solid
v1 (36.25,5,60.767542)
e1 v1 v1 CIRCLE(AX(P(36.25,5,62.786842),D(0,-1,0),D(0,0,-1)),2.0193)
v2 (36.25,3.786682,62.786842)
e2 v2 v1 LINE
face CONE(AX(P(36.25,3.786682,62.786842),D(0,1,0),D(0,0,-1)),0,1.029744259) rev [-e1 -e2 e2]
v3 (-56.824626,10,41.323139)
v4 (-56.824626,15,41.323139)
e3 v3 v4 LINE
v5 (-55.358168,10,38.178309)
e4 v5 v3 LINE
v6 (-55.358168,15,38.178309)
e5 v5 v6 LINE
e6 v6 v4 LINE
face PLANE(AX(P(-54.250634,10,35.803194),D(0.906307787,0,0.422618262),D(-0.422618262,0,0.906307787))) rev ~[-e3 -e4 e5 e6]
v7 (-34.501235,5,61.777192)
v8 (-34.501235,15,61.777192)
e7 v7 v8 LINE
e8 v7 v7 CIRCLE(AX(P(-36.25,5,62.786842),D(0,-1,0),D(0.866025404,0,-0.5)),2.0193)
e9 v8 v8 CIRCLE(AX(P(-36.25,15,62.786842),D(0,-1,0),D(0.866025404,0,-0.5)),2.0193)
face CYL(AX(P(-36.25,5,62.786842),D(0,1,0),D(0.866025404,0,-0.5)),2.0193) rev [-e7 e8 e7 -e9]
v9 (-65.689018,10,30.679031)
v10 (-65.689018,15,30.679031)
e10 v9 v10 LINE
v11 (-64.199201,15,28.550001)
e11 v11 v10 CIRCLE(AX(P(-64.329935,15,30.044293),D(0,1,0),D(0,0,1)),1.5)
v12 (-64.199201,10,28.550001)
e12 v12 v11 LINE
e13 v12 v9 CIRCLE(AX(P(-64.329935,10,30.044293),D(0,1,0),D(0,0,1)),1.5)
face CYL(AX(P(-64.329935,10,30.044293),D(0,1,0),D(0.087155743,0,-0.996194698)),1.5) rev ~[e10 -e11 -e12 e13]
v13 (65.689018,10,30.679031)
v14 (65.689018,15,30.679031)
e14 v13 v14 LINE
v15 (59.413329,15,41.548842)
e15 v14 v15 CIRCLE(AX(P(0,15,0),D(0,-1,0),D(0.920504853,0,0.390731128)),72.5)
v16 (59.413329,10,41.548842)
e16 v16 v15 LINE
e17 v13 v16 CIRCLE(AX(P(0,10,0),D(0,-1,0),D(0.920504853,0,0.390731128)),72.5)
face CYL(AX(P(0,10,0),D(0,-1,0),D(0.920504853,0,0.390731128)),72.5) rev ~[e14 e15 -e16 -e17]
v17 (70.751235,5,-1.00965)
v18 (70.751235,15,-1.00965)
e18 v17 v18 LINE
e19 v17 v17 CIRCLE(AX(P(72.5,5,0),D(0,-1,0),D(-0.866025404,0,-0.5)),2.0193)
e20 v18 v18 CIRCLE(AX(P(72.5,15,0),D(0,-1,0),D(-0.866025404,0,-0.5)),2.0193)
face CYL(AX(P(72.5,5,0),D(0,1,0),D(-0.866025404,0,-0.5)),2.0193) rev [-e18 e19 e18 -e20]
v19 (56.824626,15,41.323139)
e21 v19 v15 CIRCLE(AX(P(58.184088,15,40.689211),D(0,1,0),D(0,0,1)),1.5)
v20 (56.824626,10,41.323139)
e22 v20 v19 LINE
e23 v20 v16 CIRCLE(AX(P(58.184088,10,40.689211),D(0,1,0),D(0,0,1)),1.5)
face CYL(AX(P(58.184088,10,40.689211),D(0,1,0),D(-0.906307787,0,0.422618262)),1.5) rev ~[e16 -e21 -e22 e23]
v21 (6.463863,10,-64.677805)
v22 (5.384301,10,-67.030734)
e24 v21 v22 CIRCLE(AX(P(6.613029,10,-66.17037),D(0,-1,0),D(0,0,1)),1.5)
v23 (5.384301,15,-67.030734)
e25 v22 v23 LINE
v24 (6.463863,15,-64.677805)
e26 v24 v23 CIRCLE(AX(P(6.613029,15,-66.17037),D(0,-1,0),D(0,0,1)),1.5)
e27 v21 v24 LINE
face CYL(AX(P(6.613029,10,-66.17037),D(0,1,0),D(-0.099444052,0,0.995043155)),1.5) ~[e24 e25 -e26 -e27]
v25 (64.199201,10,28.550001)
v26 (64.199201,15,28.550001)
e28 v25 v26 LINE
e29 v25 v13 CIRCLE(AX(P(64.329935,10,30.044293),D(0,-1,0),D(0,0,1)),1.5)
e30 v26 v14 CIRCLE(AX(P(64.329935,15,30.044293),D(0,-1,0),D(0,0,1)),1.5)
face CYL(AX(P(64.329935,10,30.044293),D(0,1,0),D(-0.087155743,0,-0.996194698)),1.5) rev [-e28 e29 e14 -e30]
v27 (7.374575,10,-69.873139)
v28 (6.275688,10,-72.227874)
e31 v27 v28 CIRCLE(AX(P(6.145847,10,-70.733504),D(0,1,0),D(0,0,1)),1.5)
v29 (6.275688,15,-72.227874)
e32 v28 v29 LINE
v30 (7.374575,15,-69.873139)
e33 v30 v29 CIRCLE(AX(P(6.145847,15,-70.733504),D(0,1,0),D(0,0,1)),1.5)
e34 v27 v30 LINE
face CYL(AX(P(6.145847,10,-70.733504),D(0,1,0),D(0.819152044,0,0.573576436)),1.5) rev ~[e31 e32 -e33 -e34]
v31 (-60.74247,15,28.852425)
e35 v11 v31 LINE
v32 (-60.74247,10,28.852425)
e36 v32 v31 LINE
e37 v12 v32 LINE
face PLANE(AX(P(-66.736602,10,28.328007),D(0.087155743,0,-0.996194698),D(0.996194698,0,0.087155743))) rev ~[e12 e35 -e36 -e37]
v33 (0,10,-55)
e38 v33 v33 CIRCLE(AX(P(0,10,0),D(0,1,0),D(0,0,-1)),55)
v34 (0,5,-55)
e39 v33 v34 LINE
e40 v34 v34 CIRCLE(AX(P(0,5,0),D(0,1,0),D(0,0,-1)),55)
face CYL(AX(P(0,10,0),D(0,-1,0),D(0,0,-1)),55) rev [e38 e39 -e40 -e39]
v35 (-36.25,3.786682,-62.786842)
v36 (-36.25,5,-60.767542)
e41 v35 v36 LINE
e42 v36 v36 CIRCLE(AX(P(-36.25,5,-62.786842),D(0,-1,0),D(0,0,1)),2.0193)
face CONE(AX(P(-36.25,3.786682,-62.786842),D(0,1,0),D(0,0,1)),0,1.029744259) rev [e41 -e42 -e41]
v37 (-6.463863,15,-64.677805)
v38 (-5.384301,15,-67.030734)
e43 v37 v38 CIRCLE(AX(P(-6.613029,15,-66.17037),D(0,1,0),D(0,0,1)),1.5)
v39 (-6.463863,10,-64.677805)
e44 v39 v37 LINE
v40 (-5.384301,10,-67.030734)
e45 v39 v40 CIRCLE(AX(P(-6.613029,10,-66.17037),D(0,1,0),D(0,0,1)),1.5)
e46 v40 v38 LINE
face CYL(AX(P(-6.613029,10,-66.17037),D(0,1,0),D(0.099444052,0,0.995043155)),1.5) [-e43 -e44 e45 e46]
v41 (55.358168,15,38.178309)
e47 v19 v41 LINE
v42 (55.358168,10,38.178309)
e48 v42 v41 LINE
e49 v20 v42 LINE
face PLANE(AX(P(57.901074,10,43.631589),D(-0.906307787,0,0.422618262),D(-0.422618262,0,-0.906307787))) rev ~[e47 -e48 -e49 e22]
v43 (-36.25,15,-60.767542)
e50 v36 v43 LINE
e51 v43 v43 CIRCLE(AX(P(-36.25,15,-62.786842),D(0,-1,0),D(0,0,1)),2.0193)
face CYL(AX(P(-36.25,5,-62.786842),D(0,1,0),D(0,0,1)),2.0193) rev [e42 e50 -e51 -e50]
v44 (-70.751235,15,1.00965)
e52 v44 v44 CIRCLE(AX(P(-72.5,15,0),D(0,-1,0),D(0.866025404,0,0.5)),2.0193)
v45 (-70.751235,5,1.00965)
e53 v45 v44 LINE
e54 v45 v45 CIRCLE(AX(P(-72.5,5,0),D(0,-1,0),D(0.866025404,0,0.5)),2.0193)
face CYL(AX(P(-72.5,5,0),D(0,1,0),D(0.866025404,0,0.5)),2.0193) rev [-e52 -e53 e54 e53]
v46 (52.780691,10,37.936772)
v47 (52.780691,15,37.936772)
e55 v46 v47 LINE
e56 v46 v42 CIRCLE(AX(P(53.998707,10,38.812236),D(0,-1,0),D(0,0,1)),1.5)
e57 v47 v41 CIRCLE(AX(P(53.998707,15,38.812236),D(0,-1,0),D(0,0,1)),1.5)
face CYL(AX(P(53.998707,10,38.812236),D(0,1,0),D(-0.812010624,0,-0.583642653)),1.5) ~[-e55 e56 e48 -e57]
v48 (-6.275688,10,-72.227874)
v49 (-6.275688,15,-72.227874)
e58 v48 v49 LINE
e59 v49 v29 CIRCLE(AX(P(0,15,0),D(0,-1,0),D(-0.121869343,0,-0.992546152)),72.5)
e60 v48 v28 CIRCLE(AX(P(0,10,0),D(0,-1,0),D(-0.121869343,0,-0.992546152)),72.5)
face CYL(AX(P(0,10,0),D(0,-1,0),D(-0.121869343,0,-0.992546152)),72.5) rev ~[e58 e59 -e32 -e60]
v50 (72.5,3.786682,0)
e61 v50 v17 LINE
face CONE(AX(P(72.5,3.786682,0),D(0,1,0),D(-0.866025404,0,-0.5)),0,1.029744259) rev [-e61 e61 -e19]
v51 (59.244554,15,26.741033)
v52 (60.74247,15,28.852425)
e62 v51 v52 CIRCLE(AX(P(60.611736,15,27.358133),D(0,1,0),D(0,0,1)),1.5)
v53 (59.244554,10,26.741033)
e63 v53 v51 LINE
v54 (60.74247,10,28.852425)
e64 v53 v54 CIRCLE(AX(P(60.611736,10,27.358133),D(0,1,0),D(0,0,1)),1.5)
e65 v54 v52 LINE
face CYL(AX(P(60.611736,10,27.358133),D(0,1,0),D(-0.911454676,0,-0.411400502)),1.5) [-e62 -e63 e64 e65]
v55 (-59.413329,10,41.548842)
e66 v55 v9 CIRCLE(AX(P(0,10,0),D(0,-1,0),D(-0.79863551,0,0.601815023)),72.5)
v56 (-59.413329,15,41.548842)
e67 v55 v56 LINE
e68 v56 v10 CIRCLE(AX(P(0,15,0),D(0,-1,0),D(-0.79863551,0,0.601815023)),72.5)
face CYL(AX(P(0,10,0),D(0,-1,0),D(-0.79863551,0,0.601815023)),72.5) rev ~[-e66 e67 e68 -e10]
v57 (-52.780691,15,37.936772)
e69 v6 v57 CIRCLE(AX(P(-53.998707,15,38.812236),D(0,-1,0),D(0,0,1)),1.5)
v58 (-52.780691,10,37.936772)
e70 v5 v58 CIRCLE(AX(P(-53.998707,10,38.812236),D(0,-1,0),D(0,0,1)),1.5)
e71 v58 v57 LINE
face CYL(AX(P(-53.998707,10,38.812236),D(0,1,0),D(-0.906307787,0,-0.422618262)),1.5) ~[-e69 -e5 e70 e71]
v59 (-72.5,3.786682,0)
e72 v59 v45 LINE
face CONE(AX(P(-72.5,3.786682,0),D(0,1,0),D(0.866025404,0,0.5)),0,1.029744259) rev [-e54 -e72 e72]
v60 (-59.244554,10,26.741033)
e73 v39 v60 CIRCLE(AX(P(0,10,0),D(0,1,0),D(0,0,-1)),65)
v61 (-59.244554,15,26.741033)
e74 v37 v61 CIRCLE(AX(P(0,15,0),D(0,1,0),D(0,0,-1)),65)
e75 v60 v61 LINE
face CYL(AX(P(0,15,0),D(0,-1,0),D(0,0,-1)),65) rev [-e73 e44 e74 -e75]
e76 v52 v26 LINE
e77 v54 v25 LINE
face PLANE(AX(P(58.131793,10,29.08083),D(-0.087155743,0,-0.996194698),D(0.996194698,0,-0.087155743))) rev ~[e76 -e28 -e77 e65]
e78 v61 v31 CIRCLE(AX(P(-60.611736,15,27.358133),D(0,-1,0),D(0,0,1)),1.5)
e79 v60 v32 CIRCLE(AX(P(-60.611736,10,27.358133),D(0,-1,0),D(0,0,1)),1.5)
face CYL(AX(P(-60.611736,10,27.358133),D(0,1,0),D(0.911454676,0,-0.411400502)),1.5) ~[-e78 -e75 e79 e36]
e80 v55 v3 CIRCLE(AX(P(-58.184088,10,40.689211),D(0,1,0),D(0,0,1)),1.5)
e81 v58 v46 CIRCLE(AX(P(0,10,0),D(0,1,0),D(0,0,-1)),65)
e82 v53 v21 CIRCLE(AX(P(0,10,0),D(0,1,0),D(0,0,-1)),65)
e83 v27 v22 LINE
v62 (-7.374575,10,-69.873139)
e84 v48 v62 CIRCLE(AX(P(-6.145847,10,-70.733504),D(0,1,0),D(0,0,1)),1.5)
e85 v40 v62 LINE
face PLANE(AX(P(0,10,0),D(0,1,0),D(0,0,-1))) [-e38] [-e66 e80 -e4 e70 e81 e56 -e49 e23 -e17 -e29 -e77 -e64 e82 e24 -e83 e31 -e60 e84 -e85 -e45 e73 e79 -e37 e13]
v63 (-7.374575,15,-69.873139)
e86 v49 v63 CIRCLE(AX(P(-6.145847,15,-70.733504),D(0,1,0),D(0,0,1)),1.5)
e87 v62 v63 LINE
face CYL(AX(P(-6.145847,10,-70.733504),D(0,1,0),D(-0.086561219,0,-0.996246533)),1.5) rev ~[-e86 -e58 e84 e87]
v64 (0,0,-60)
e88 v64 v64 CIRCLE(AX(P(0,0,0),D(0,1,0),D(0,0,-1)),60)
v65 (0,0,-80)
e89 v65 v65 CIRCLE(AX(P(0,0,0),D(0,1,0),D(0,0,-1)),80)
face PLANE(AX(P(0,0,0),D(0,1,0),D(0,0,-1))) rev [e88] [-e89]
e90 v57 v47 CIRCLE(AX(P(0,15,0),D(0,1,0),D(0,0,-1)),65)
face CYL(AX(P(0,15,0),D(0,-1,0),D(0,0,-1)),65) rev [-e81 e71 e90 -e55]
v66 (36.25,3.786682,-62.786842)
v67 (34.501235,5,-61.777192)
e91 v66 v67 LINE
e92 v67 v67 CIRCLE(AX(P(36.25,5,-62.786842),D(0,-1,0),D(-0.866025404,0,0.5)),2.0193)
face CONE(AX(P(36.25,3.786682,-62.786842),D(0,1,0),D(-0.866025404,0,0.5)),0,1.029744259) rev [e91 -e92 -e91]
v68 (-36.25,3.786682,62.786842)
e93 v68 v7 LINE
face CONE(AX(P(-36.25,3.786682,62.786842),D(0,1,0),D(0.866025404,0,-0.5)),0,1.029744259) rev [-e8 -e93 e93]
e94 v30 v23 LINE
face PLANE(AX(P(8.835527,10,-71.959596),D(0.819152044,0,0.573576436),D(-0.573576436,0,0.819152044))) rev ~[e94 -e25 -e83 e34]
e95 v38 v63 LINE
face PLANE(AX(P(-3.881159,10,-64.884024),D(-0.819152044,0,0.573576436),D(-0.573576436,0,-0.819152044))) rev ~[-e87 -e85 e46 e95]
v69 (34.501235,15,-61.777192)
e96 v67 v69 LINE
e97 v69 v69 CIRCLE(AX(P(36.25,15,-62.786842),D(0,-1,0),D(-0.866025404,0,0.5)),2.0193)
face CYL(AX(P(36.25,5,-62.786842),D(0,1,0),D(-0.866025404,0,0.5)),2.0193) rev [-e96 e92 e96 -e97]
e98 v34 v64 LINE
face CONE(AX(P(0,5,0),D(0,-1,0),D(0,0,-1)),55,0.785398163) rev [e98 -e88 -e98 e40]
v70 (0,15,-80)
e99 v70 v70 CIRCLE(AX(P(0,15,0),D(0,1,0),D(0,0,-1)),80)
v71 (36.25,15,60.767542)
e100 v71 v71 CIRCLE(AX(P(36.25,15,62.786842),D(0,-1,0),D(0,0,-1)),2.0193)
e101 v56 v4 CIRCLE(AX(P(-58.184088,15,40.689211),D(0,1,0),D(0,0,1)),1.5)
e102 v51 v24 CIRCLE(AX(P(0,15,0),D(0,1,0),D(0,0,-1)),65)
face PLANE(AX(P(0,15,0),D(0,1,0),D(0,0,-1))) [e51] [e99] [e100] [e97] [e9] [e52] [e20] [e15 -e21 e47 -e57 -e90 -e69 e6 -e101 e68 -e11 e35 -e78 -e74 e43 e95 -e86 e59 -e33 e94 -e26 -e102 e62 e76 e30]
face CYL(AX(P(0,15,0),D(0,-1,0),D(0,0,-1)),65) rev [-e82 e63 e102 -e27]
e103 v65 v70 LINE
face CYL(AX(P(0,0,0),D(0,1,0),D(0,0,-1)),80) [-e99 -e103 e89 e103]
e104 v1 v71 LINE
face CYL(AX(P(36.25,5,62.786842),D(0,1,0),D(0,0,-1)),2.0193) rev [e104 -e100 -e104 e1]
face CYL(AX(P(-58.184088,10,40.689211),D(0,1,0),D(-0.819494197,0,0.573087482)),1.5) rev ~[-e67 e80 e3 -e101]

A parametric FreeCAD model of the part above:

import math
import FreeCAD as App
import Part
import Sketcher
from FreeCAD import Vector
Q = App.Units.Quantity


def edges_at(feature, points):
    """Names of the edges that pass closest to the given points."""
    edges = feature.Shape.Edges
    near = lambda p: min(range(len(edges)), key=lambda i: edges[i].distToShape(Part.Vertex(*p))[0])
    return sorted({f"Edge{near(p) + 1}" for p in points})

doc = App.newDocument("Part")
body = doc.addObject("PartDesign::Body", "Body")

sketch1 = doc.addObject("Sketcher::SketchObject", "Sketch")
body.addObject(sketch1)
sketch1.AttachmentSupport = (doc.YZ_Plane, [""])
sketch1.MapMode = "FlatFace"
sketch1.addGeometry(Part.LineSegment(Vector(0, 80, 0), Vector(0, 55, 0)), False)
sketch1.addGeometry(Part.LineSegment(Vector(0, 55, 0), Vector(10, 55, 0)), False)
sketch1.addGeometry(Part.LineSegment(Vector(10, 55, 0), Vector(10, 65, 0)), False)
sketch1.addGeometry(Part.LineSegment(Vector(10, 65, 0), Vector(15, 65, 0)), False)
sketch1.addGeometry(Part.LineSegment(Vector(15, 65, 0), Vector(15, 80, 0)), False)
sketch1.addGeometry(Part.LineSegment(Vector(15, 80, 0), Vector(0, 80, 0)), False)
sketch1.addConstraint(Sketcher.Constraint("Coincident", 0, 2, 1, 1))
sketch1.addConstraint(Sketcher.Constraint("Coincident", 1, 2, 2, 1))
sketch1.addConstraint(Sketcher.Constraint("Coincident", 2, 2, 3, 1))
sketch1.addConstraint(Sketcher.Constraint("Coincident", 3, 2, 4, 1))
sketch1.addConstraint(Sketcher.Constraint("Coincident", 4, 2, 5, 1))
sketch1.addConstraint(Sketcher.Constraint("Coincident", 5, 2, 0, 1))
sketch1.addConstraint(Sketcher.Constraint("Vertical", 0))
sketch1.addConstraint(Sketcher.Constraint("Horizontal", 1))
sketch1.addConstraint(Sketcher.Constraint("Vertical", 2))
sketch1.addConstraint(Sketcher.Constraint("Horizontal", 3))
sketch1.addConstraint(Sketcher.Constraint("Vertical", 4))
sketch1.addConstraint(Sketcher.Constraint("Horizontal", 5))
sketch1.addConstraint(Sketcher.Constraint("PointOnObject", 0, 2, -2))
sketch1.addConstraint(Sketcher.Constraint("Equal", 1, 2))
sketch1.addConstraint(Sketcher.Constraint("Equal", 5, 4))
sketch1.addConstraint(Sketcher.Constraint("DistanceX", 1, 1, 1, 2, Q("10 mm")))
sketch1.addConstraint(Sketcher.Constraint("DistanceX", 3, 1, 3, 2, Q("5 mm")))
sketch1.addConstraint(Sketcher.Constraint("DistanceY", -1, 1, 0, 2, Q("55 mm")))
revolution = doc.addObject("PartDesign::Revolution", "Revolution")
body.addObject(revolution)
revolution.Profile = sketch1
revolution.ReferenceAxis = (sketch1, ["H_Axis"])
revolution.Angle = 360

sketch2 = doc.addObject("Sketcher::SketchObject", "Sketch001")
body.addObject(sketch2)
sketch2.AttachmentSupport = (doc.XZ_Plane, [""])
sketch2.MapMode = "FlatFace"
sketch2.AttachmentOffset = App.Placement(Vector(0, 0, -10), App.Rotation())
sketch2.addGeometry(Part.LineSegment(Vector(-9, -72, 0), Vector(-4, -65, 0)), False)
sketch2.addGeometry(Part.ArcOfCircle(Part.Circle(Vector(0, 0, 0), Vector(0, 0, 1), 65), math.radians(-93.42), math.radians(-86.58)), False)
sketch2.addGeometry(Part.LineSegment(Vector(4, -65, 0), Vector(9, -72, 0)), False)
sketch2.addGeometry(Part.ArcOfCircle(Part.Circle(Vector(0, 0, 0), Vector(0, 0, 1), 73), math.radians(-97), math.radians(-83)), False)
sketch2.addConstraint(Sketcher.Constraint("Coincident", 0, 2, 1, 1))
sketch2.addConstraint(Sketcher.Constraint("Coincident", 1, 2, 2, 1))
sketch2.addConstraint(Sketcher.Constraint("Coincident", 2, 2, 3, 2))
sketch2.addConstraint(Sketcher.Constraint("Coincident", 3, 1, 0, 1))
sketch2.addConstraint(Sketcher.Constraint("Coincident", 1, 3, -1, 1))
sketch2.addConstraint(Sketcher.Constraint("Coincident", 3, 3, -1, 1))
sketch2.addConstraint(Sketcher.Constraint("Horizontal", 0, 2, 1, 2))
sketch2.addConstraint(Sketcher.Constraint("Horizontal", 2, 2, 3, 1))
sketch2.addConstraint(Sketcher.Constraint("Radius", 1, Q("65 mm")))
sketch2.addConstraint(Sketcher.Constraint("Radius", 3, Q("72.5 mm")))
sketch2.addConstraint(Sketcher.Constraint("Angle", 0, Q("55 deg")))
sketch2.addConstraint(Sketcher.Constraint("Distance", 0, Q("8.637678 mm")))
pocket1 = doc.addObject("PartDesign::Pocket", "Pocket")
body.addObject(pocket1)
pocket1.Profile = sketch2
pocket1.Length = 5
doc.recompute()

fillet = doc.addObject("PartDesign::Fillet", "Fillet")
body.addObject(fillet)
fillet.Base = (pocket1, edges_at(pocket1, [
    (3.881, 12.5, -64.884),
    (-3.881, 12.5, -64.884),
    (-8.836, 12.5, -71.96),
    (8.836, 12.5, -71.96),
]))
fillet.Radius = 1.5
doc.recompute()

chamfer = doc.addObject("PartDesign::Chamfer", "Chamfer")
body.addObject(chamfer)
chamfer.Base = (fillet, edges_at(fillet, [(0, 0, 55)]))
chamfer.Size = 5
doc.recompute()

polarpattern = doc.addObject("PartDesign::PolarPattern", "PolarPattern")
body.addObject(polarpattern)
polarpattern.Originals = [pocket1]
polarpattern.Axis = (doc.Y_Axis, [""])
polarpattern.Angle = 360
polarpattern.Occurrences = 3
body.Tip = polarpattern
doc.recompute()

fillet2 = doc.addObject("PartDesign::Fillet", "Fillet001")
body.addObject(fillet2)
fillet2.Base = (polarpattern, edges_at(polarpattern, [
    (-58.132, 12.5, 29.081),
    (-54.251, 12.5, 35.803),
    (-57.901, 12.5, 43.632),
    (-66.737, 12.5, 28.328),
    (54.251, 12.5, 35.803),
    (58.132, 12.5, 29.081),
    (66.737, 12.5, 28.328),
    (57.901, 12.5, 43.632),
]))
fillet2.Radius = 1.5

sketch3 = doc.addObject("Sketcher::SketchObject", "Sketch002")
body.addObject(sketch3)
sketch3.AttachmentSupport = (doc.YZ_Plane, [""])
sketch3.MapMode = "FlatFace"
sketch3.AttachmentOffset = App.Placement(Vector(0, 0, -36.25), App.Rotation())
sketch3.addGeometry(Part.LineSegment(Vector(3.8, -62.8, 0), Vector(15, -62.8, 0)), False)
sketch3.addGeometry(Part.LineSegment(Vector(15, -62.8, 0), Vector(15, -60.8, 0)), False)
sketch3.addGeometry(Part.LineSegment(Vector(15, -60.8, 0), Vector(5, -60.8, 0)), False)
sketch3.addGeometry(Part.LineSegment(Vector(5, -60.8, 0), Vector(3.8, -62.8, 0)), False)
sketch3.addGeometry(Part.LineSegment(Vector(15, -62.8, 0), Vector(3.8, -62.8, 0)), True)
sketch3.addConstraint(Sketcher.Constraint("Coincident", 0, 2, 1, 1))
sketch3.addConstraint(Sketcher.Constraint("Coincident", 1, 2, 2, 1))
sketch3.addConstraint(Sketcher.Constraint("Coincident", 2, 2, 3, 1))
sketch3.addConstraint(Sketcher.Constraint("Coincident", 3, 2, 0, 1))
sketch3.addConstraint(Sketcher.Constraint("Horizontal", 0))
sketch3.addConstraint(Sketcher.Constraint("Vertical", 1))
sketch3.addConstraint(Sketcher.Constraint("Horizontal", 2))
sketch3.addConstraint(Sketcher.Constraint("Horizontal", 4))
sketch3.addConstraint(Sketcher.Constraint("Coincident", 4, 1, 0, 2))
sketch3.addConstraint(Sketcher.Constraint("Equal", 0, 4))
sketch3.addConstraint(Sketcher.Constraint("DistanceX", 2, 2, 2, 1, Q("10 mm")))
sketch3.addConstraint(Sketcher.Constraint("Angle", 3, Q("-121 deg")))
sketch3.addConstraint(Sketcher.Constraint("DistanceX", -1, 1, 0, 2, Q("15 mm")))
sketch3.addConstraint(Sketcher.Constraint("DistanceY", 1, 1, 1, 2, Q("2.0193 mm")))
sketch3.addConstraint(Sketcher.Constraint("DistanceY", 0, 2, -1, 1, Q("62.786842 mm")))
groove = doc.addObject("PartDesign::Groove", "Groove")
body.addObject(groove)
groove.Profile = sketch3
groove.ReferenceAxis = (sketch3, ["Axis0"])
groove.Angle = 360
doc.recompute()

polarpattern2 = doc.addObject("PartDesign::PolarPattern", "PolarPattern001")
body.addObject(polarpattern2)
polarpattern2.Originals = [groove]
polarpattern2.Axis = (doc.Y_Axis, [""])
polarpattern2.Angle = 360
polarpattern2.Occurrences = 6
body.Tip = polarpattern2

doc.recompute()
